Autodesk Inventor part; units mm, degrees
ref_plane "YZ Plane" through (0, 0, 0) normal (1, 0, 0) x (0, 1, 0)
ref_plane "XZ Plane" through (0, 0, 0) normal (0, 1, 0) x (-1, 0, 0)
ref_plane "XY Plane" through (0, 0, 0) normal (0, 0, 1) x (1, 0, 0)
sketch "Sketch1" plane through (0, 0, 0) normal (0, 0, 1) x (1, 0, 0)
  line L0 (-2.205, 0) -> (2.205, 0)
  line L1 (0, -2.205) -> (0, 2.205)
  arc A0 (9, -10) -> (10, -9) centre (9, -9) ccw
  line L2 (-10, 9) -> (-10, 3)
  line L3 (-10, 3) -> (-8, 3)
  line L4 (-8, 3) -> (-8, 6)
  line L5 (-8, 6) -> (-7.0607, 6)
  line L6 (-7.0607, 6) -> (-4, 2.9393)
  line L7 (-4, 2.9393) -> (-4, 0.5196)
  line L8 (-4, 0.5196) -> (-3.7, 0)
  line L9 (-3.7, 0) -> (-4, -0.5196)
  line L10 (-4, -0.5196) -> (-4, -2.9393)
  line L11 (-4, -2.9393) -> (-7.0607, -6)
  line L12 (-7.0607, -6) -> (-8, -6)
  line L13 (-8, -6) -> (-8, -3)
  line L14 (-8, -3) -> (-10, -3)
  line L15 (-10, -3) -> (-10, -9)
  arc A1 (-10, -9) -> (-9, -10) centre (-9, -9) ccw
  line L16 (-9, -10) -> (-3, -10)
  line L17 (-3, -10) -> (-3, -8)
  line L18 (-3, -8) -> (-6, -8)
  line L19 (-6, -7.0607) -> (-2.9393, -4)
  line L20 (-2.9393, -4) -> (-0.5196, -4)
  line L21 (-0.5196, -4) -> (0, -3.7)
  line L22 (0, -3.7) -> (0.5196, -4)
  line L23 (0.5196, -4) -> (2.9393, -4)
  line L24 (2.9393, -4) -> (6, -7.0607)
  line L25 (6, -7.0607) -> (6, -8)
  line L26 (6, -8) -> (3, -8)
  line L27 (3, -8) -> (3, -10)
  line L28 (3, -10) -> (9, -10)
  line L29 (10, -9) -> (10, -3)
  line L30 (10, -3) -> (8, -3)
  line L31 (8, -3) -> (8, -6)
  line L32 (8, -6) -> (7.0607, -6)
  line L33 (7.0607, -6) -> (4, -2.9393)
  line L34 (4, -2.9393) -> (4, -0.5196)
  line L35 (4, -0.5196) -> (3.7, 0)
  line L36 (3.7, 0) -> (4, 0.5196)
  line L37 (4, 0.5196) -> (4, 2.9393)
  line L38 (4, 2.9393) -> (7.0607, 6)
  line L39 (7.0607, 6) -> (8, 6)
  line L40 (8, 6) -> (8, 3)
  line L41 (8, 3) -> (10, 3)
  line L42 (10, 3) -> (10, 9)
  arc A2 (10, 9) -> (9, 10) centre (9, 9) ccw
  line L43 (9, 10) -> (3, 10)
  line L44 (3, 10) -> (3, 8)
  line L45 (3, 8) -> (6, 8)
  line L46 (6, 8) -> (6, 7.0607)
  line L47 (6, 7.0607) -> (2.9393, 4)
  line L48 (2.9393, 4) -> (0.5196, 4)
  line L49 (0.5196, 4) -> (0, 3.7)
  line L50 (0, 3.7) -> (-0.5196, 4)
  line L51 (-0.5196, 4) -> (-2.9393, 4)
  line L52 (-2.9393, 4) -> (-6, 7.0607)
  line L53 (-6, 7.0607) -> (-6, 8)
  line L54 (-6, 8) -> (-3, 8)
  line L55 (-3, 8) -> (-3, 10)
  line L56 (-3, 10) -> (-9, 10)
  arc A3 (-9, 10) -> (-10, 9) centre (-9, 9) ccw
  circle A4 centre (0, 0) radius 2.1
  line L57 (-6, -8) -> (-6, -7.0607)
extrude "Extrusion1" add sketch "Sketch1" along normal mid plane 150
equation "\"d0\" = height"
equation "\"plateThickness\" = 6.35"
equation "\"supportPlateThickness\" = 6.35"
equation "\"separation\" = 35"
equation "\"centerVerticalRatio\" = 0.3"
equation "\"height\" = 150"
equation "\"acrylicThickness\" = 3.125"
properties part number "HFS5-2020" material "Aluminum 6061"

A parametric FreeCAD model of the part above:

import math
import FreeCAD as App
import Part
import Sketcher
from FreeCAD import Vector
Q = App.Units.Quantity

doc = App.newDocument("Part")
body = doc.addObject("PartDesign::Body", "Body")

sketch1 = body.newObject("Sketcher::SketchObject", "Sketch")
sketch1.AttachmentSupport = (doc.getObject("XY_Plane"), [""])
sketch1.MapMode = "FlatFace"
sketch1.addGeometry([
    Part.LineSegment(Vector(3, -10, 0), Vector(9, -10, 0)),
    Part.ArcOfCircle(Part.Circle(Vector(9, -9, 0), Vector(0, 0, 1), 1), math.radians(-90), math.radians(0)),
    Part.LineSegment(Vector(10, -9, 0), Vector(10, -3, 0)),
    Part.LineSegment(Vector(10, -3, 0), Vector(8, -3, 0)),
    Part.LineSegment(Vector(8, -3, 0), Vector(8, -6, 0)),
    Part.LineSegment(Vector(8, -6, 0), Vector(7.0607, -6, 0)),
    Part.LineSegment(Vector(7.0607, -6, 0), Vector(4, -2.9393, 0)),
    Part.LineSegment(Vector(4, -2.9393, 0), Vector(4, -0.5196, 0)),
    Part.LineSegment(Vector(4, -0.5196, 0), Vector(3.7, 0, 0)),
    Part.LineSegment(Vector(3.7, 0, 0), Vector(4, 0.5196, 0)),
    Part.LineSegment(Vector(4, 0.5196, 0), Vector(4, 2.9393, 0)),
    Part.LineSegment(Vector(4, 2.9393, 0), Vector(7.0607, 6, 0)),
    Part.LineSegment(Vector(7.0607, 6, 0), Vector(8, 6, 0)),
    Part.LineSegment(Vector(8, 6, 0), Vector(8, 3, 0)),
    Part.LineSegment(Vector(8, 3, 0), Vector(10, 3, 0)),
    Part.LineSegment(Vector(10, 3, 0), Vector(10, 9, 0)),
    Part.ArcOfCircle(Part.Circle(Vector(9, 9, 0), Vector(0, 0, 1), 1), math.radians(0), math.radians(90)),
    Part.LineSegment(Vector(9, 10, 0), Vector(3, 10, 0)),
    Part.LineSegment(Vector(3, 10, 0), Vector(3, 8, 0)),
    Part.LineSegment(Vector(3, 8, 0), Vector(6, 8, 0)),
    Part.LineSegment(Vector(6, 8, 0), Vector(6, 7.0607, 0)),
    Part.LineSegment(Vector(6, 7.0607, 0), Vector(2.9393, 4, 0)),
    Part.LineSegment(Vector(2.9393, 4, 0), Vector(0.5196, 4, 0)),
    Part.LineSegment(Vector(0.5196, 4, 0), Vector(0, 3.7, 0)),
    Part.LineSegment(Vector(0, 3.7, 0), Vector(-0.5196, 4, 0)),
    Part.LineSegment(Vector(-0.5196, 4, 0), Vector(-2.9393, 4, 0)),
    Part.LineSegment(Vector(-2.9393, 4, 0), Vector(-6, 7.0607, 0)),
    Part.LineSegment(Vector(-6, 7.0607, 0), Vector(-6, 8, 0)),
    Part.LineSegment(Vector(-6, 8, 0), Vector(-3, 8, 0)),
    Part.LineSegment(Vector(-3, 8, 0), Vector(-3, 10, 0)),
    Part.LineSegment(Vector(-3, 10, 0), Vector(-9, 10, 0)),
    Part.ArcOfCircle(Part.Circle(Vector(-9, 9, 0), Vector(0, 0, 1), 1), math.radians(90), math.radians(180)),
    Part.LineSegment(Vector(-10, 9, 0), Vector(-10, 3, 0)),
    Part.LineSegment(Vector(-10, 3, 0), Vector(-8, 3, 0)),
    Part.LineSegment(Vector(-8, 3, 0), Vector(-8, 6, 0)),
    Part.LineSegment(Vector(-8, 6, 0), Vector(-7.0607, 6, 0)),
    Part.LineSegment(Vector(-7.0607, 6, 0), Vector(-4, 2.9393, 0)),
    Part.LineSegment(Vector(-4, 2.9393, 0), Vector(-4, 0.5196, 0)),
    Part.LineSegment(Vector(-4, 0.5196, 0), Vector(-3.7, 0, 0)),
    Part.LineSegment(Vector(-3.7, 0, 0), Vector(-4, -0.5196, 0)),
    Part.LineSegment(Vector(-4, -0.5196, 0), Vector(-4, -2.9393, 0)),
    Part.LineSegment(Vector(-4, -2.9393, 0), Vector(-7.0607, -6, 0)),
    Part.LineSegment(Vector(-7.0607, -6, 0), Vector(-8, -6, 0)),
    Part.LineSegment(Vector(-8, -6, 0), Vector(-8, -3, 0)),
    Part.LineSegment(Vector(-8, -3, 0), Vector(-10, -3, 0)),
    Part.LineSegment(Vector(-10, -3, 0), Vector(-10, -9, 0)),
    Part.ArcOfCircle(Part.Circle(Vector(-9, -9, 0), Vector(0, 0, 1), 1), math.radians(180), math.radians(270)),
    Part.LineSegment(Vector(-9, -10, 0), Vector(-3, -10, 0)),
    Part.LineSegment(Vector(-3, -10, 0), Vector(-3, -8, 0)),
    Part.LineSegment(Vector(-3, -8, 0), Vector(-6, -8, 0)),
    Part.LineSegment(Vector(-6, -8, 0), Vector(-6, -7.0607, 0)),
    Part.LineSegment(Vector(-6, -7.0607, 0), Vector(-2.9393, -4, 0)),
    Part.LineSegment(Vector(-2.9393, -4, 0), Vector(-0.5196, -4, 0)),
    Part.LineSegment(Vector(-0.5196, -4, 0), Vector(0, -3.7, 0)),
    Part.LineSegment(Vector(0, -3.7, 0), Vector(0.5196, -4, 0)),
    Part.LineSegment(Vector(0.5196, -4, 0), Vector(2.9393, -4, 0)),
    Part.LineSegment(Vector(2.9393, -4, 0), Vector(6, -7.0607, 0)),
    Part.LineSegment(Vector(6, -7.0607, 0), Vector(6, -8, 0)),
    Part.LineSegment(Vector(6, -8, 0), Vector(3, -8, 0)),
    Part.LineSegment(Vector(3, -8, 0), Vector(3, -10, 0)),
    Part.Circle(Vector(0, 0, 0), Vector(0, 0, 1), 2.1),
], False)
sketch1.addConstraint([
    Sketcher.Constraint("Tangent", 0, 2, 1, 1),
    Sketcher.Constraint("Tangent", 1, 2, 2, 1),
    Sketcher.Constraint("Coincident", 2, 2, 3, 1),
    Sketcher.Constraint("Coincident", 3, 2, 4, 1),
    Sketcher.Constraint("Coincident", 4, 2, 5, 1),
    Sketcher.Constraint("Coincident", 5, 2, 6, 1),
    Sketcher.Constraint("Coincident", 6, 2, 7, 1),
    Sketcher.Constraint("Coincident", 7, 2, 8, 1),
    Sketcher.Constraint("Coincident", 8, 2, 9, 1),
    Sketcher.Constraint("Coincident", 9, 2, 10, 1),
    Sketcher.Constraint("Coincident", 10, 2, 11, 1),
    Sketcher.Constraint("Coincident", 11, 2, 12, 1),
    Sketcher.Constraint("Coincident", 12, 2, 13, 1),
    Sketcher.Constraint("Coincident", 13, 2, 14, 1),
    Sketcher.Constraint("Coincident", 14, 2, 15, 1),
    Sketcher.Constraint("Tangent", 15, 2, 16, 1),
    Sketcher.Constraint("Tangent", 16, 2, 17, 1),
    Sketcher.Constraint("Coincident", 17, 2, 18, 1),
    Sketcher.Constraint("Coincident", 18, 2, 19, 1),
    Sketcher.Constraint("Coincident", 19, 2, 20, 1),
    Sketcher.Constraint("Coincident", 20, 2, 21, 1),
    Sketcher.Constraint("Coincident", 21, 2, 22, 1),
    Sketcher.Constraint("Coincident", 22, 2, 23, 1),
    Sketcher.Constraint("Coincident", 23, 2, 24, 1),
    Sketcher.Constraint("Coincident", 24, 2, 25, 1),
    Sketcher.Constraint("Coincident", 25, 2, 26, 1),
    Sketcher.Constraint("Coincident", 26, 2, 27, 1),
    Sketcher.Constraint("Coincident", 27, 2, 28, 1),
    Sketcher.Constraint("Coincident", 28, 2, 29, 1),
    Sketcher.Constraint("Coincident", 29, 2, 30, 1),
    Sketcher.Constraint("Tangent", 30, 2, 31, 1),
    Sketcher.Constraint("Tangent", 31, 2, 32, 1),
    Sketcher.Constraint("Coincident", 32, 2, 33, 1),
    Sketcher.Constraint("Coincident", 33, 2, 34, 1),
    Sketcher.Constraint("Coincident", 34, 2, 35, 1),
    Sketcher.Constraint("Coincident", 35, 2, 36, 1),
    Sketcher.Constraint("Coincident", 36, 2, 37, 1),
    Sketcher.Constraint("Coincident", 37, 2, 38, 1),
    Sketcher.Constraint("Coincident", 38, 2, 39, 1),
    Sketcher.Constraint("Coincident", 39, 2, 40, 1),
    Sketcher.Constraint("Coincident", 40, 2, 41, 1),
    Sketcher.Constraint("Coincident", 41, 2, 42, 1),
    Sketcher.Constraint("Coincident", 42, 2, 43, 1),
    Sketcher.Constraint("Coincident", 43, 2, 44, 1),
    Sketcher.Constraint("Coincident", 44, 2, 45, 1),
    Sketcher.Constraint("Tangent", 45, 2, 46, 1),
    Sketcher.Constraint("Tangent", 46, 2, 47, 1),
    Sketcher.Constraint("Coincident", 47, 2, 48, 1),
    Sketcher.Constraint("Coincident", 48, 2, 49, 1),
    Sketcher.Constraint("Coincident", 49, 2, 50, 1),
    Sketcher.Constraint("Coincident", 50, 2, 51, 1),
    Sketcher.Constraint("Coincident", 51, 2, 52, 1),
    Sketcher.Constraint("Coincident", 52, 2, 53, 1),
    Sketcher.Constraint("Coincident", 53, 2, 54, 1),
    Sketcher.Constraint("Coincident", 54, 2, 55, 1),
    Sketcher.Constraint("Coincident", 55, 2, 56, 1),
    Sketcher.Constraint("Coincident", 56, 2, 57, 1),
    Sketcher.Constraint("Coincident", 57, 2, 58, 1),
    Sketcher.Constraint("Coincident", 58, 2, 59, 1),
    Sketcher.Constraint("Coincident", 59, 2, 0, 1),
    Sketcher.Constraint("Horizontal", 0),
    Sketcher.Constraint("Vertical", 2),
    Sketcher.Constraint("Horizontal", 3),
    Sketcher.Constraint("Vertical", 4),
    Sketcher.Constraint("Horizontal", 5),
    Sketcher.Constraint("Vertical", 7),
    Sketcher.Constraint("Vertical", 10),
    Sketcher.Constraint("Horizontal", 12),
    Sketcher.Constraint("Vertical", 13),
    Sketcher.Constraint("Horizontal", 14),
    Sketcher.Constraint("Vertical", 15),
    Sketcher.Constraint("Horizontal", 17),
    Sketcher.Constraint("Vertical", 18),
    Sketcher.Constraint("Horizontal", 19),
    Sketcher.Constraint("Vertical", 20),
    Sketcher.Constraint("Horizontal", 22),
    Sketcher.Constraint("Horizontal", 25),
    Sketcher.Constraint("Vertical", 27),
    Sketcher.Constraint("Horizontal", 28),
    Sketcher.Constraint("Vertical", 29),
    Sketcher.Constraint("Horizontal", 30),
    Sketcher.Constraint("Vertical", 32),
    Sketcher.Constraint("Horizontal", 33),
    Sketcher.Constraint("Vertical", 34),
    Sketcher.Constraint("Horizontal", 35),
    Sketcher.Constraint("Vertical", 37),
    Sketcher.Constraint("Vertical", 40),
    Sketcher.Constraint("Horizontal", 42),
    Sketcher.Constraint("Vertical", 43),
    Sketcher.Constraint("Horizontal", 44),
    Sketcher.Constraint("Vertical", 45),
    Sketcher.Constraint("Horizontal", 47),
    Sketcher.Constraint("Vertical", 48),
    Sketcher.Constraint("Horizontal", 49),
    Sketcher.Constraint("Vertical", 50),
    Sketcher.Constraint("Horizontal", 52),
    Sketcher.Constraint("Horizontal", 55),
    Sketcher.Constraint("Vertical", 57),
    Sketcher.Constraint("Horizontal", 58),
    Sketcher.Constraint("Vertical", 59),
    Sketcher.Constraint("Coincident", 60, 3, -1, 1),
    Sketcher.Constraint("Equal", 1, 16),
    Sketcher.Constraint("Equal", 16, 31),
    Sketcher.Constraint("Equal", 31, 46),
    Sketcher.Constraint("Symmetric", 1, 3, 31, 3, -1, 1),
    Sketcher.Constraint("Symmetric", 16, 3, 46, 3, -1, 1),
    Sketcher.Constraint("Symmetric", 3, 2, 33, 2, -1, 1),
    Sketcher.Constraint("Symmetric", 5, 2, 35, 2, -1, 1),
    Sketcher.Constraint("Symmetric", 6, 2, 36, 2, -1, 1),
    Sketcher.Constraint("Symmetric", 8, 2, 38, 2, -1, 1),
    Sketcher.Constraint("Symmetric", 9, 2, 39, 2, -1, 1),
    Sketcher.Constraint("Symmetric", 11, 2, 41, 2, -1, 1),
    Sketcher.Constraint("Symmetric", 13, 2, 43, 2, -1, 1),
    Sketcher.Constraint("Symmetric", 18, 2, 48, 2, -1, 1),
    Sketcher.Constraint("Symmetric", 20, 2, 50, 2, -1, 1),
    Sketcher.Constraint("Symmetric", 21, 2, 51, 2, -1, 1),
    Sketcher.Constraint("Symmetric", 23, 2, 53, 2, -1, 1),
    Sketcher.Constraint("Symmetric", 24, 2, 54, 2, -1, 1),
    Sketcher.Constraint("Symmetric", 26, 2, 56, 2, -1, 1),
    Sketcher.Constraint("Symmetric", 28, 2, 58, 2, -1, 1),
    Sketcher.Constraint("Symmetric", 16, 3, 31, 3, -2),
    Sketcher.Constraint("Symmetric", 22, 2, 24, 2, -2),
    Sketcher.Constraint("Symmetric", 20, 2, 26, 2, -2),
    Sketcher.Constraint("Symmetric", 18, 2, 28, 2, -2),
    Sketcher.Constraint("Symmetric", 13, 2, 33, 2, -2),
    Sketcher.Constraint("Symmetric", 11, 2, 35, 2, -2),
    Sketcher.Constraint("Symmetric", 10, 2, 36, 2, -2),
    Sketcher.Constraint("PointOnObject", 8, 2, -1),
    Sketcher.Constraint("PointOnObject", 23, 2, -2),
    Sketcher.Constraint("Perpendicular", 6, 11),
    Sketcher.Constraint("Parallel", 11, 21),
    Sketcher.Constraint("Perpendicular", 8, 23),
    Sketcher.Constraint("Perpendicular", 9, 24),
    Sketcher.Constraint("Perpendicular", 21, 26),
    Sketcher.Constraint("Perpendicular", 23, 38),
    Sketcher.Constraint("Perpendicular", 36, 41),
    Sketcher.Constraint("Perpendicular", 38, 53),
    Sketcher.Constraint("Perpendicular", 51, 56),
    Sketcher.Constraint("Equal", 47, 2),
    Sketcher.Constraint("Equal", 58, 4),
    Sketcher.Constraint("Equal", 55, 7),
    Sketcher.Constraint("Equal", 44, 18),
    Sketcher.Constraint("Equal", 42, 20),
    Sketcher.Constraint("Equal", 11, 21),
    Sketcher.Constraint("Equal", 9, 23),
    Sketcher.Constraint("Radius", 1, 1.0),
    Sketcher.Constraint("Diameter", 60, 4.2),
    Sketcher.Constraint("DistanceX", 0, 1, 0, 2, 6.0),
    Sketcher.Constraint("DistanceX", 3, 2, 3, 1, 2.0),
    Sketcher.Constraint("DistanceX", 19, 1, 19, 2, 3.0),
    Sketcher.Constraint("Angle", 8, Q("120.0007 deg")),
    Sketcher.Constraint("DistanceX", -1, 1, 1, 3, 9.0),
    Sketcher.Constraint("DistanceX", -1, 1, 6, 2, 4.0),
    Sketcher.Constraint("Distance", 8, 0.6),
    Sketcher.Constraint("DistanceX", 5, 2, 5, 1, 0.9393),
])
pad1 = body.newObject("PartDesign::Pad", "Pad")
pad1.Profile = sketch1
pad1.Length = 150
pad1.Midplane = True

doc.recompute()
